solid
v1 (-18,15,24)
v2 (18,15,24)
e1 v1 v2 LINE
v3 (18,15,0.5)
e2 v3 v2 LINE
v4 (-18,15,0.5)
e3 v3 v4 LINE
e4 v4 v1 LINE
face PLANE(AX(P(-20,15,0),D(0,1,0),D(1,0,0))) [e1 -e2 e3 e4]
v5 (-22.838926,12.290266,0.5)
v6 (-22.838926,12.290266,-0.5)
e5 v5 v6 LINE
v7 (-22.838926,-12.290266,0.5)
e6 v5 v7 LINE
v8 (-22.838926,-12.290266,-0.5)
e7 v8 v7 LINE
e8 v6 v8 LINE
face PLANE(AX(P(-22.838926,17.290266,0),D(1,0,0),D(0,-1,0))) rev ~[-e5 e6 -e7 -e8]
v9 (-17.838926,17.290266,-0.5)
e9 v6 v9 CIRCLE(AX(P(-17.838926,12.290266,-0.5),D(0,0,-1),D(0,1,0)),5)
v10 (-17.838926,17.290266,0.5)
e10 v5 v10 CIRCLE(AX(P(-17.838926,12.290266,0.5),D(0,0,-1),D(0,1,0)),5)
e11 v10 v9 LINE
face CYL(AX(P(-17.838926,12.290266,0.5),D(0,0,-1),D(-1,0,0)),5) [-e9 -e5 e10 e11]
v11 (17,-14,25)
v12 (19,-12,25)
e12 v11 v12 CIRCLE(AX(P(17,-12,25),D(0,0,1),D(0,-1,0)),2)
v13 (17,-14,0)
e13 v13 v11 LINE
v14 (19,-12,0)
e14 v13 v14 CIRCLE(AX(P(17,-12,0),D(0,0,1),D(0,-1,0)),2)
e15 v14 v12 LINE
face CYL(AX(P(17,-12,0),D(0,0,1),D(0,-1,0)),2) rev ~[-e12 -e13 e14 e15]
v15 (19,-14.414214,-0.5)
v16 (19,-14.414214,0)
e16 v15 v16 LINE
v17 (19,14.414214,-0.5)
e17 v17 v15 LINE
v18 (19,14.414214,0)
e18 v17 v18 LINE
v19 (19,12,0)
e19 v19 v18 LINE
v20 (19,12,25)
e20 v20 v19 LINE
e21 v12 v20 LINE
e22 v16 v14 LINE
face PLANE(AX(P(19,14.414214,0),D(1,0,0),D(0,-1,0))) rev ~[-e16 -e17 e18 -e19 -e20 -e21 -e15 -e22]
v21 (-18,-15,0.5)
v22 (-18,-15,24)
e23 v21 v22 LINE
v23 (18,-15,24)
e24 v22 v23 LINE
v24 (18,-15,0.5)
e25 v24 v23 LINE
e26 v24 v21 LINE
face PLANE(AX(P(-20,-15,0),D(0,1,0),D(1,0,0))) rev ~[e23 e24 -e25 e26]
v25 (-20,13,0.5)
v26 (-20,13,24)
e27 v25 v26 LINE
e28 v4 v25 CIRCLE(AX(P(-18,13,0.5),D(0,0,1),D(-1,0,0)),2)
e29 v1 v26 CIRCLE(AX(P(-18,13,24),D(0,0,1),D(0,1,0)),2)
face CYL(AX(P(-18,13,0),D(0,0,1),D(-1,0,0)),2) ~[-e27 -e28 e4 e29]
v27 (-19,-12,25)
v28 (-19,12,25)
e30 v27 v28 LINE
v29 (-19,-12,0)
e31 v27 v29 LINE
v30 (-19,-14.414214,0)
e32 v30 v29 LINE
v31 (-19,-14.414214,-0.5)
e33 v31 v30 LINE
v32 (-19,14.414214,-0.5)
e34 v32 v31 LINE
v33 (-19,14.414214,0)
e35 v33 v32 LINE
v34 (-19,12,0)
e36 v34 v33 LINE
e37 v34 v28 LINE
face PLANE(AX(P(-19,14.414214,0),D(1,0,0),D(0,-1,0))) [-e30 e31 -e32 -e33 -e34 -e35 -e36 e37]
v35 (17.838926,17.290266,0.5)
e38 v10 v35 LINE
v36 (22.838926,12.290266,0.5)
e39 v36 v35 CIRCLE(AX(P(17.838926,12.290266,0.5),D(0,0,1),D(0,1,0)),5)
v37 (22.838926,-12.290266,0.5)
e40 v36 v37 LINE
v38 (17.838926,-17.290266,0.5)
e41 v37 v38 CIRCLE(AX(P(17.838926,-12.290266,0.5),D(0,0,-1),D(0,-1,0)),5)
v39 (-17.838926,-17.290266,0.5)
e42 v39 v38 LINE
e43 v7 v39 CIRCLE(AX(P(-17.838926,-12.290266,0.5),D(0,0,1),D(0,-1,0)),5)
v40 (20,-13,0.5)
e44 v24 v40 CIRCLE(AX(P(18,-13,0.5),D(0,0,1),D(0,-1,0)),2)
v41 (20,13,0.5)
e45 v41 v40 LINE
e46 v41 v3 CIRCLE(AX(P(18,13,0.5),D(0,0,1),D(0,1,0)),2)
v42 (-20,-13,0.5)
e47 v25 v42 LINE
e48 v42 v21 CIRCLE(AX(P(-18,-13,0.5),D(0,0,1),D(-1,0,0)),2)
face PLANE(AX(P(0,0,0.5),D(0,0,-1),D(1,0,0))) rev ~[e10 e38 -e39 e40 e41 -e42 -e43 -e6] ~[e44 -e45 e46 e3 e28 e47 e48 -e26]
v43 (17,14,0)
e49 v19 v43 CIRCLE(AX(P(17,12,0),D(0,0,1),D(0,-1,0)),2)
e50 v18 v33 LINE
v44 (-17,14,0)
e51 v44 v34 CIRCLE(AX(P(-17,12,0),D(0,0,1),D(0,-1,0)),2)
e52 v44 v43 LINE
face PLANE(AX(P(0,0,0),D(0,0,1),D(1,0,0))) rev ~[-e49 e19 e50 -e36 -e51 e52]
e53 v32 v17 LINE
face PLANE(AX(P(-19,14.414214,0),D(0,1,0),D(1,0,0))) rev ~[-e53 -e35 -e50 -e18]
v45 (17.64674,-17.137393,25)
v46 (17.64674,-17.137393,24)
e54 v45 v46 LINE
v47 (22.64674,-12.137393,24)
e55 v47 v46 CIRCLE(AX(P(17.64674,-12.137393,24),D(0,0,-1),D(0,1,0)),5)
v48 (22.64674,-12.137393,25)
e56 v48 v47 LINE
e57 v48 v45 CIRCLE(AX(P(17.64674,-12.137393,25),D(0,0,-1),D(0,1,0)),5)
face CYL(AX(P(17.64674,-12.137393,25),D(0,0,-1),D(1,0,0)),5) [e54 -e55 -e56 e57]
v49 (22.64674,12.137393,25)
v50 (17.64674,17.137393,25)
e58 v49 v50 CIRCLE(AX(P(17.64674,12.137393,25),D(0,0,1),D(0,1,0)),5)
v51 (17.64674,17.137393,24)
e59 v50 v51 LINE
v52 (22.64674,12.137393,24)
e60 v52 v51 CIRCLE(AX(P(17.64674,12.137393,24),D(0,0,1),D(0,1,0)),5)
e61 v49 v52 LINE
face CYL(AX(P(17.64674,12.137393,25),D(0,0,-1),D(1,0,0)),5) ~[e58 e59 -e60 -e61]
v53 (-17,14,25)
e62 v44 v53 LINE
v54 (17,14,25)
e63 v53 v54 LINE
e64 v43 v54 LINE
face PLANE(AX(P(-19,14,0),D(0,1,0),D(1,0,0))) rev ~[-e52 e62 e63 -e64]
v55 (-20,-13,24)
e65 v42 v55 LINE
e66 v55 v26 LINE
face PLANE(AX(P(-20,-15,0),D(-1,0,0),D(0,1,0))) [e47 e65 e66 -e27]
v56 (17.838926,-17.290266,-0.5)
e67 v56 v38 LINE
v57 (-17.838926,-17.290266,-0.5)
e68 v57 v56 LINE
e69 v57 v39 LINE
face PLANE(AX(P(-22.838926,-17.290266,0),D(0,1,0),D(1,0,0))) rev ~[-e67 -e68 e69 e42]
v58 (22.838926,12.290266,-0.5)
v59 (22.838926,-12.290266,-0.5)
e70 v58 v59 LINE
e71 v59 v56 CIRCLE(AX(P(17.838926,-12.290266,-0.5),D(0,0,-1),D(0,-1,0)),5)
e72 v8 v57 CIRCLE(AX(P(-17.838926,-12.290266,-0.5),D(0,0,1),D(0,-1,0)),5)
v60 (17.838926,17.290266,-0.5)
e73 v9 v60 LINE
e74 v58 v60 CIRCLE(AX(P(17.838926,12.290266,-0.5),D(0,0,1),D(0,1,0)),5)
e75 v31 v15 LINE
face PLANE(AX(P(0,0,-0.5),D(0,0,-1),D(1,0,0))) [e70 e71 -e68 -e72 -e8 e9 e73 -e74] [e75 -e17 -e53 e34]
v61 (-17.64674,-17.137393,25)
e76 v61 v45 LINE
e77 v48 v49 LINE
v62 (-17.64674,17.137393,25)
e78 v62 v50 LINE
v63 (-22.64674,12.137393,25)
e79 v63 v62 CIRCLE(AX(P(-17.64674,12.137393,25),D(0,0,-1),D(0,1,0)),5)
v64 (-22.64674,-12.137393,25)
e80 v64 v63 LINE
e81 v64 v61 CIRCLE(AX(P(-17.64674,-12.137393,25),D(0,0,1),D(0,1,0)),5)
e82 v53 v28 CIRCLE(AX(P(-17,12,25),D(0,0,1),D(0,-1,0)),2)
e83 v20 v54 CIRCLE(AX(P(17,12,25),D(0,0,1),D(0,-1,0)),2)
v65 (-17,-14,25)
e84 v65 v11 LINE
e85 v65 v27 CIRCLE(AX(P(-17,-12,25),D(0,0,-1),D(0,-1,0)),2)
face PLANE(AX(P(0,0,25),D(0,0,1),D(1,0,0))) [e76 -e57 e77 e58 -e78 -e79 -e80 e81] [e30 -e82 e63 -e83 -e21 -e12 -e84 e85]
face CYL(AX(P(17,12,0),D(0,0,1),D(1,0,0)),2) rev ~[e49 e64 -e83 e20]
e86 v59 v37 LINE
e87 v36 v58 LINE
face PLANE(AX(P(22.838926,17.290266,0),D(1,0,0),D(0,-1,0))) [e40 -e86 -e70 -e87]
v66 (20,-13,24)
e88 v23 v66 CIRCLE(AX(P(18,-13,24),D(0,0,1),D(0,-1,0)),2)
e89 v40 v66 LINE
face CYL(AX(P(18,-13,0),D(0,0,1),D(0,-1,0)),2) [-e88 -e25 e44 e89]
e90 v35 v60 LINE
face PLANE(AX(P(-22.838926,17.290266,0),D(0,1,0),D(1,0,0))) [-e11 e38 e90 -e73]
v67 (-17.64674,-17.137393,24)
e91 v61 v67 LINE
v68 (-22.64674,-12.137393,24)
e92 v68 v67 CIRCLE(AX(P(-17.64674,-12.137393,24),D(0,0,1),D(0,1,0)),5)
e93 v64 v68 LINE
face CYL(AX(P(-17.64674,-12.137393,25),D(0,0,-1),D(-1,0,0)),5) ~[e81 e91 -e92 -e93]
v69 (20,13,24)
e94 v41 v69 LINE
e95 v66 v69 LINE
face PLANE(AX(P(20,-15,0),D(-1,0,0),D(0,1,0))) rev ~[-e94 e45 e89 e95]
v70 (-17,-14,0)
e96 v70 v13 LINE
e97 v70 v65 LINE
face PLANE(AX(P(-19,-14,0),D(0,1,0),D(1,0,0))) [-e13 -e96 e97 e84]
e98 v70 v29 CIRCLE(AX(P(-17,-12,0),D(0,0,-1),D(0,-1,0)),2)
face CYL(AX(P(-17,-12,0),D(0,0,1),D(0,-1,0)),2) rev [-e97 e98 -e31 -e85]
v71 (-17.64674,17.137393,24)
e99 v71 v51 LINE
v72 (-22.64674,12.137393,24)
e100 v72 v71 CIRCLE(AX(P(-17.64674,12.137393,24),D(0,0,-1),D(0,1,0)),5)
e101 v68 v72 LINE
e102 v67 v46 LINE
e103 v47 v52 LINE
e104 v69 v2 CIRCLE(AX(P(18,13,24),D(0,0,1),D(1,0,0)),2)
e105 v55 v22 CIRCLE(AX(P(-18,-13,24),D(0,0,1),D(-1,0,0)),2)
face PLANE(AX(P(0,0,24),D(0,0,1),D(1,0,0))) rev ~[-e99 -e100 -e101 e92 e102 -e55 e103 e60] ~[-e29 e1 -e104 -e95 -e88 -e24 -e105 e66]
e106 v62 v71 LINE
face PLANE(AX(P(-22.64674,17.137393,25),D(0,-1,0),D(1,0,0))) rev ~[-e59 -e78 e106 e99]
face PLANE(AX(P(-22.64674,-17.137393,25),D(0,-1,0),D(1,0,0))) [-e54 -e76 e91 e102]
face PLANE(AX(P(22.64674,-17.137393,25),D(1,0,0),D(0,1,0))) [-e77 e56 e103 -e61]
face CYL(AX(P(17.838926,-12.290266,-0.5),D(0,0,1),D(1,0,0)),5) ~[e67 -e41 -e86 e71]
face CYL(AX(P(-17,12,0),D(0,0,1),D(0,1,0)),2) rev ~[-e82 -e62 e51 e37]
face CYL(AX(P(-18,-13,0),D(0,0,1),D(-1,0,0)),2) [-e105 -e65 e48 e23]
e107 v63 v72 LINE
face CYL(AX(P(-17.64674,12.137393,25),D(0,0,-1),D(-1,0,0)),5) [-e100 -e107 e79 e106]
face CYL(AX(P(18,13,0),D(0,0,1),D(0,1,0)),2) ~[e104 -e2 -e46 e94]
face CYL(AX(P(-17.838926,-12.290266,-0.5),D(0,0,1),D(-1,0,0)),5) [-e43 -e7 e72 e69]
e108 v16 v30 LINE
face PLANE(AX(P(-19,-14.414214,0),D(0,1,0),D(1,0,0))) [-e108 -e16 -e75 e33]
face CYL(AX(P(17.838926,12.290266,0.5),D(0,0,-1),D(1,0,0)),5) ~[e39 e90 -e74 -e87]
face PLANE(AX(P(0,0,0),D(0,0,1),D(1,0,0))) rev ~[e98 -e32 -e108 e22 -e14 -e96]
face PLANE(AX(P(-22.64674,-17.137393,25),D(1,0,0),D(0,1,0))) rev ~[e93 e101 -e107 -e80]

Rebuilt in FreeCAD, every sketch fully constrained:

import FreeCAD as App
import Part
import Sketcher

V = App.Vector


def edges_at(feature, points):
    """Names of the edges that pass closest to the given points."""
    edges = feature.Shape.Edges
    near = lambda p: min(range(len(edges)), key=lambda i: edges[i].distToShape(Part.Vertex(*p))[0])
    return sorted({f"Edge{near(p) + 1}" for p in points})


def add_polygon(sketch, points):
    """Adds a closed chain of lines whose ends are joined by coincident constraints."""
    first, n = sketch.GeometryCount, len(points)
    for a, b in zip(points, points[1:] + points[:1]):
        sketch.addGeometry(Part.LineSegment(App.Vector(*a, 0), App.Vector(*b, 0)), False)
    for i in range(n):
        sketch.addConstraint(Sketcher.Constraint("Coincident", first + i, 2, first + (i + 1) % n, 1))

doc = App.newDocument("Part")
params = doc.addObject("Spreadsheet::Sheet", "Params")
for row, (alias, value) in enumerate([
    ("sketch1_width", "40 mm"),
    ("sketch1_width2", "38 mm"),
    ("sketch1_height", "30 mm"),
    ("sketch1_height2", "28 mm"),
    ("pad1_length", "25 mm"),
    ("fillet_radius", "2 mm"),
    ("pad2_length", "1 mm"),
    ("fillet2_radius", "5 mm"),
    ("sketch3_width", "38 mm"),
    ("pad3_length", "1 mm"),
    ("fillet3_radius", "5 mm"),
], start=1):
    params.set(f"A{row}", alias)
    params.set(f"B{row}", "=" + value)
    params.setAlias(f"B{row}", alias)

body = doc.addObject("PartDesign::Body", "Body")

sketch1 = body.newObject("Sketcher::SketchObject", "Sketch")
sketch1.AttachmentSupport = (doc.getObject("XY_Plane"), [""])
sketch1.MapMode = "FlatFace"
add_polygon(sketch1, [(-20, 15), (-20, -15), (20, -15), (20, 15)])
add_polygon(sketch1, [(19, -14), (-19, -14), (-19, 14), (19, 14)])
sketch1.addConstraint(Sketcher.Constraint("Vertical", 0))
sketch1.addConstraint(Sketcher.Constraint("Horizontal", 1))
sketch1.addConstraint(Sketcher.Constraint("Vertical", 2))
sketch1.addConstraint(Sketcher.Constraint("Horizontal", 3))
sketch1.addConstraint(Sketcher.Constraint("Horizontal", 4))
sketch1.addConstraint(Sketcher.Constraint("Vertical", 5))
sketch1.addConstraint(Sketcher.Constraint("Horizontal", 6))
sketch1.addConstraint(Sketcher.Constraint("Vertical", 7))
sketch1.addConstraint(Sketcher.Constraint("Symmetric", 0, 2, 2, 2, -1, 1))
sketch1.addConstraint(Sketcher.Constraint("Symmetric", 4, 2, 6, 2, -1, 1))
sketch1.addConstraint(Sketcher.Constraint("DistanceX", 1, 1, 1, 2, 40.0))
sketch1.addConstraint(Sketcher.Constraint("DistanceX", 4, 2, 4, 1, 38.0))
sketch1.addConstraint(Sketcher.Constraint("DistanceY", 0, 2, 0, 1, 30.0))
sketch1.addConstraint(Sketcher.Constraint("DistanceY", 5, 1, 5, 2, 28.0))
sketch1.setExpression("Constraints[18]", "Params.sketch1_width")
sketch1.setExpression("Constraints[19]", "Params.sketch1_width2")
sketch1.setExpression("Constraints[20]", "Params.sketch1_height")
sketch1.setExpression("Constraints[21]", "Params.sketch1_height2")
pad1 = body.newObject("PartDesign::Pad", "Pad")
pad1.Profile = sketch1
pad1.setExpression("Length", "Params.pad1_length")
doc.recompute()

fillet = body.newObject("PartDesign::Fillet", "Fillet")
fillet.Base = (pad1, edges_at(pad1, [
    (-19, -14, 12.5),
    (-20, -15, 12.5),
    (-20, 15, 12.5),
    (-19, 14, 12.5),
    (19, -14, 12.5),
    (19, 14, 12.5),
    (20, 15, 12.5),
    (20, -15, 12.5),
]))
fillet.setExpression("Radius", "Params.fillet_radius")

sketch2 = body.newObject("Sketcher::SketchObject", "Sketch001")
sketch2.AttachmentSupport = (doc.getObject("XY_Plane"), [""])
sketch2.MapMode = "FlatFace"
sketch2.AttachmentOffset = App.Placement(V(0, 0, 25), App.Rotation())
add_polygon(sketch2, [(-23, 17), (-23, -17), (23, -17), (23, 17)])
add_polygon(sketch2, [(19, -14), (-19, -14), (-19, 14), (19, 14)])
sketch2.addConstraint(Sketcher.Constraint("Vertical", 0))
sketch2.addConstraint(Sketcher.Constraint("Horizontal", 1))
sketch2.addConstraint(Sketcher.Constraint("Vertical", 2))
sketch2.addConstraint(Sketcher.Constraint("Horizontal", 3))
sketch2.addConstraint(Sketcher.Constraint("Horizontal", 4))
sketch2.addConstraint(Sketcher.Constraint("Vertical", 5))
sketch2.addConstraint(Sketcher.Constraint("Horizontal", 6))
sketch2.addConstraint(Sketcher.Constraint("Vertical", 7))
sketch2.addConstraint(Sketcher.Constraint("Symmetric", 0, 2, 2, 2, -1, 1))
sketch2.addConstraint(Sketcher.Constraint("Symmetric", 4, 2, 6, 2, -1, 1))
sketch2.addConstraint(Sketcher.Constraint("DistanceX", 1, 1, 1, 2, 45.29348))
sketch2.addConstraint(Sketcher.Constraint("DistanceX", 4, 2, 4, 1, 38.828427))
sketch2.addConstraint(Sketcher.Constraint("DistanceY", 0, 2, 0, 1, 34.274787))
sketch2.addConstraint(Sketcher.Constraint("DistanceY", 5, 1, 5, 2, 28.828427))
pad2 = body.newObject("PartDesign::Pad", "Pad001")
pad2.Profile = sketch2
pad2.setExpression("Length", "Params.pad2_length")
pad2.Reversed = True
doc.recompute()

fillet2 = body.newObject("PartDesign::Fillet", "Fillet001")
fillet2.Base = (pad2, edges_at(pad2, [
    (-22.647, 17.137, 24.5),
    (-22.647, -17.137, 24.5),
    (22.647, 17.137, 24.5),
    (22.647, -17.137, 24.5),
]))
fillet2.setExpression("Radius", "Params.fillet2_radius")

sketch3 = body.newObject("Sketcher::SketchObject", "Sketch002")
sketch3.AttachmentSupport = (doc.getObject("XY_Plane"), [""])
sketch3.MapMode = "FlatFace"
add_polygon(sketch3, [(-23, -17), (-23, 17), (23, 17), (23, -17)])
add_polygon(sketch3, [(19, 14), (-19, 14), (-19, -14), (19, -14)])
sketch3.addConstraint(Sketcher.Constraint("Vertical", 0))
sketch3.addConstraint(Sketcher.Constraint("Horizontal", 1))
sketch3.addConstraint(Sketcher.Constraint("Vertical", 2))
sketch3.addConstraint(Sketcher.Constraint("Horizontal", 3))
sketch3.addConstraint(Sketcher.Constraint("Horizontal", 4))
sketch3.addConstraint(Sketcher.Constraint("Vertical", 5))
sketch3.addConstraint(Sketcher.Constraint("Horizontal", 6))
sketch3.addConstraint(Sketcher.Constraint("Vertical", 7))
sketch3.addConstraint(Sketcher.Constraint("Symmetric", 0, 2, 2, 2, -1, 1))
sketch3.addConstraint(Sketcher.Constraint("Symmetric", 4, 2, 6, 2, -1, 1))
sketch3.addConstraint(Sketcher.Constraint("DistanceX", 4, 2, 4, 1, 38.0))
sketch3.addConstraint(Sketcher.Constraint("DistanceX", 1, 1, 1, 2, 45.677852))
sketch3.addConstraint(Sketcher.Constraint("DistanceY", 0, 1, 0, 2, 34.580532))
sketch3.addConstraint(Sketcher.Constraint("DistanceY", 5, 2, 5, 1, 28.828427))
sketch3.setExpression("Constraints[18]", "Params.sketch3_width")
pad3 = body.newObject("PartDesign::Pad", "Pad002")
pad3.Profile = sketch3
pad3.setExpression("Length", "Params.pad3_length")
pad3.Midplane = True
doc.recompute()

fillet3 = body.newObject("PartDesign::Fillet", "Fillet002")
fillet3.Base = (pad3, edges_at(pad3, [
    (-22.839, -17.29, 0),
    (22.839, -17.29, 0),
    (-22.839, 17.29, 0),
    (22.839, 17.29, 0),
]))
fillet3.setExpression("Radius", "Params.fillet3_radius")

doc.recompute()
